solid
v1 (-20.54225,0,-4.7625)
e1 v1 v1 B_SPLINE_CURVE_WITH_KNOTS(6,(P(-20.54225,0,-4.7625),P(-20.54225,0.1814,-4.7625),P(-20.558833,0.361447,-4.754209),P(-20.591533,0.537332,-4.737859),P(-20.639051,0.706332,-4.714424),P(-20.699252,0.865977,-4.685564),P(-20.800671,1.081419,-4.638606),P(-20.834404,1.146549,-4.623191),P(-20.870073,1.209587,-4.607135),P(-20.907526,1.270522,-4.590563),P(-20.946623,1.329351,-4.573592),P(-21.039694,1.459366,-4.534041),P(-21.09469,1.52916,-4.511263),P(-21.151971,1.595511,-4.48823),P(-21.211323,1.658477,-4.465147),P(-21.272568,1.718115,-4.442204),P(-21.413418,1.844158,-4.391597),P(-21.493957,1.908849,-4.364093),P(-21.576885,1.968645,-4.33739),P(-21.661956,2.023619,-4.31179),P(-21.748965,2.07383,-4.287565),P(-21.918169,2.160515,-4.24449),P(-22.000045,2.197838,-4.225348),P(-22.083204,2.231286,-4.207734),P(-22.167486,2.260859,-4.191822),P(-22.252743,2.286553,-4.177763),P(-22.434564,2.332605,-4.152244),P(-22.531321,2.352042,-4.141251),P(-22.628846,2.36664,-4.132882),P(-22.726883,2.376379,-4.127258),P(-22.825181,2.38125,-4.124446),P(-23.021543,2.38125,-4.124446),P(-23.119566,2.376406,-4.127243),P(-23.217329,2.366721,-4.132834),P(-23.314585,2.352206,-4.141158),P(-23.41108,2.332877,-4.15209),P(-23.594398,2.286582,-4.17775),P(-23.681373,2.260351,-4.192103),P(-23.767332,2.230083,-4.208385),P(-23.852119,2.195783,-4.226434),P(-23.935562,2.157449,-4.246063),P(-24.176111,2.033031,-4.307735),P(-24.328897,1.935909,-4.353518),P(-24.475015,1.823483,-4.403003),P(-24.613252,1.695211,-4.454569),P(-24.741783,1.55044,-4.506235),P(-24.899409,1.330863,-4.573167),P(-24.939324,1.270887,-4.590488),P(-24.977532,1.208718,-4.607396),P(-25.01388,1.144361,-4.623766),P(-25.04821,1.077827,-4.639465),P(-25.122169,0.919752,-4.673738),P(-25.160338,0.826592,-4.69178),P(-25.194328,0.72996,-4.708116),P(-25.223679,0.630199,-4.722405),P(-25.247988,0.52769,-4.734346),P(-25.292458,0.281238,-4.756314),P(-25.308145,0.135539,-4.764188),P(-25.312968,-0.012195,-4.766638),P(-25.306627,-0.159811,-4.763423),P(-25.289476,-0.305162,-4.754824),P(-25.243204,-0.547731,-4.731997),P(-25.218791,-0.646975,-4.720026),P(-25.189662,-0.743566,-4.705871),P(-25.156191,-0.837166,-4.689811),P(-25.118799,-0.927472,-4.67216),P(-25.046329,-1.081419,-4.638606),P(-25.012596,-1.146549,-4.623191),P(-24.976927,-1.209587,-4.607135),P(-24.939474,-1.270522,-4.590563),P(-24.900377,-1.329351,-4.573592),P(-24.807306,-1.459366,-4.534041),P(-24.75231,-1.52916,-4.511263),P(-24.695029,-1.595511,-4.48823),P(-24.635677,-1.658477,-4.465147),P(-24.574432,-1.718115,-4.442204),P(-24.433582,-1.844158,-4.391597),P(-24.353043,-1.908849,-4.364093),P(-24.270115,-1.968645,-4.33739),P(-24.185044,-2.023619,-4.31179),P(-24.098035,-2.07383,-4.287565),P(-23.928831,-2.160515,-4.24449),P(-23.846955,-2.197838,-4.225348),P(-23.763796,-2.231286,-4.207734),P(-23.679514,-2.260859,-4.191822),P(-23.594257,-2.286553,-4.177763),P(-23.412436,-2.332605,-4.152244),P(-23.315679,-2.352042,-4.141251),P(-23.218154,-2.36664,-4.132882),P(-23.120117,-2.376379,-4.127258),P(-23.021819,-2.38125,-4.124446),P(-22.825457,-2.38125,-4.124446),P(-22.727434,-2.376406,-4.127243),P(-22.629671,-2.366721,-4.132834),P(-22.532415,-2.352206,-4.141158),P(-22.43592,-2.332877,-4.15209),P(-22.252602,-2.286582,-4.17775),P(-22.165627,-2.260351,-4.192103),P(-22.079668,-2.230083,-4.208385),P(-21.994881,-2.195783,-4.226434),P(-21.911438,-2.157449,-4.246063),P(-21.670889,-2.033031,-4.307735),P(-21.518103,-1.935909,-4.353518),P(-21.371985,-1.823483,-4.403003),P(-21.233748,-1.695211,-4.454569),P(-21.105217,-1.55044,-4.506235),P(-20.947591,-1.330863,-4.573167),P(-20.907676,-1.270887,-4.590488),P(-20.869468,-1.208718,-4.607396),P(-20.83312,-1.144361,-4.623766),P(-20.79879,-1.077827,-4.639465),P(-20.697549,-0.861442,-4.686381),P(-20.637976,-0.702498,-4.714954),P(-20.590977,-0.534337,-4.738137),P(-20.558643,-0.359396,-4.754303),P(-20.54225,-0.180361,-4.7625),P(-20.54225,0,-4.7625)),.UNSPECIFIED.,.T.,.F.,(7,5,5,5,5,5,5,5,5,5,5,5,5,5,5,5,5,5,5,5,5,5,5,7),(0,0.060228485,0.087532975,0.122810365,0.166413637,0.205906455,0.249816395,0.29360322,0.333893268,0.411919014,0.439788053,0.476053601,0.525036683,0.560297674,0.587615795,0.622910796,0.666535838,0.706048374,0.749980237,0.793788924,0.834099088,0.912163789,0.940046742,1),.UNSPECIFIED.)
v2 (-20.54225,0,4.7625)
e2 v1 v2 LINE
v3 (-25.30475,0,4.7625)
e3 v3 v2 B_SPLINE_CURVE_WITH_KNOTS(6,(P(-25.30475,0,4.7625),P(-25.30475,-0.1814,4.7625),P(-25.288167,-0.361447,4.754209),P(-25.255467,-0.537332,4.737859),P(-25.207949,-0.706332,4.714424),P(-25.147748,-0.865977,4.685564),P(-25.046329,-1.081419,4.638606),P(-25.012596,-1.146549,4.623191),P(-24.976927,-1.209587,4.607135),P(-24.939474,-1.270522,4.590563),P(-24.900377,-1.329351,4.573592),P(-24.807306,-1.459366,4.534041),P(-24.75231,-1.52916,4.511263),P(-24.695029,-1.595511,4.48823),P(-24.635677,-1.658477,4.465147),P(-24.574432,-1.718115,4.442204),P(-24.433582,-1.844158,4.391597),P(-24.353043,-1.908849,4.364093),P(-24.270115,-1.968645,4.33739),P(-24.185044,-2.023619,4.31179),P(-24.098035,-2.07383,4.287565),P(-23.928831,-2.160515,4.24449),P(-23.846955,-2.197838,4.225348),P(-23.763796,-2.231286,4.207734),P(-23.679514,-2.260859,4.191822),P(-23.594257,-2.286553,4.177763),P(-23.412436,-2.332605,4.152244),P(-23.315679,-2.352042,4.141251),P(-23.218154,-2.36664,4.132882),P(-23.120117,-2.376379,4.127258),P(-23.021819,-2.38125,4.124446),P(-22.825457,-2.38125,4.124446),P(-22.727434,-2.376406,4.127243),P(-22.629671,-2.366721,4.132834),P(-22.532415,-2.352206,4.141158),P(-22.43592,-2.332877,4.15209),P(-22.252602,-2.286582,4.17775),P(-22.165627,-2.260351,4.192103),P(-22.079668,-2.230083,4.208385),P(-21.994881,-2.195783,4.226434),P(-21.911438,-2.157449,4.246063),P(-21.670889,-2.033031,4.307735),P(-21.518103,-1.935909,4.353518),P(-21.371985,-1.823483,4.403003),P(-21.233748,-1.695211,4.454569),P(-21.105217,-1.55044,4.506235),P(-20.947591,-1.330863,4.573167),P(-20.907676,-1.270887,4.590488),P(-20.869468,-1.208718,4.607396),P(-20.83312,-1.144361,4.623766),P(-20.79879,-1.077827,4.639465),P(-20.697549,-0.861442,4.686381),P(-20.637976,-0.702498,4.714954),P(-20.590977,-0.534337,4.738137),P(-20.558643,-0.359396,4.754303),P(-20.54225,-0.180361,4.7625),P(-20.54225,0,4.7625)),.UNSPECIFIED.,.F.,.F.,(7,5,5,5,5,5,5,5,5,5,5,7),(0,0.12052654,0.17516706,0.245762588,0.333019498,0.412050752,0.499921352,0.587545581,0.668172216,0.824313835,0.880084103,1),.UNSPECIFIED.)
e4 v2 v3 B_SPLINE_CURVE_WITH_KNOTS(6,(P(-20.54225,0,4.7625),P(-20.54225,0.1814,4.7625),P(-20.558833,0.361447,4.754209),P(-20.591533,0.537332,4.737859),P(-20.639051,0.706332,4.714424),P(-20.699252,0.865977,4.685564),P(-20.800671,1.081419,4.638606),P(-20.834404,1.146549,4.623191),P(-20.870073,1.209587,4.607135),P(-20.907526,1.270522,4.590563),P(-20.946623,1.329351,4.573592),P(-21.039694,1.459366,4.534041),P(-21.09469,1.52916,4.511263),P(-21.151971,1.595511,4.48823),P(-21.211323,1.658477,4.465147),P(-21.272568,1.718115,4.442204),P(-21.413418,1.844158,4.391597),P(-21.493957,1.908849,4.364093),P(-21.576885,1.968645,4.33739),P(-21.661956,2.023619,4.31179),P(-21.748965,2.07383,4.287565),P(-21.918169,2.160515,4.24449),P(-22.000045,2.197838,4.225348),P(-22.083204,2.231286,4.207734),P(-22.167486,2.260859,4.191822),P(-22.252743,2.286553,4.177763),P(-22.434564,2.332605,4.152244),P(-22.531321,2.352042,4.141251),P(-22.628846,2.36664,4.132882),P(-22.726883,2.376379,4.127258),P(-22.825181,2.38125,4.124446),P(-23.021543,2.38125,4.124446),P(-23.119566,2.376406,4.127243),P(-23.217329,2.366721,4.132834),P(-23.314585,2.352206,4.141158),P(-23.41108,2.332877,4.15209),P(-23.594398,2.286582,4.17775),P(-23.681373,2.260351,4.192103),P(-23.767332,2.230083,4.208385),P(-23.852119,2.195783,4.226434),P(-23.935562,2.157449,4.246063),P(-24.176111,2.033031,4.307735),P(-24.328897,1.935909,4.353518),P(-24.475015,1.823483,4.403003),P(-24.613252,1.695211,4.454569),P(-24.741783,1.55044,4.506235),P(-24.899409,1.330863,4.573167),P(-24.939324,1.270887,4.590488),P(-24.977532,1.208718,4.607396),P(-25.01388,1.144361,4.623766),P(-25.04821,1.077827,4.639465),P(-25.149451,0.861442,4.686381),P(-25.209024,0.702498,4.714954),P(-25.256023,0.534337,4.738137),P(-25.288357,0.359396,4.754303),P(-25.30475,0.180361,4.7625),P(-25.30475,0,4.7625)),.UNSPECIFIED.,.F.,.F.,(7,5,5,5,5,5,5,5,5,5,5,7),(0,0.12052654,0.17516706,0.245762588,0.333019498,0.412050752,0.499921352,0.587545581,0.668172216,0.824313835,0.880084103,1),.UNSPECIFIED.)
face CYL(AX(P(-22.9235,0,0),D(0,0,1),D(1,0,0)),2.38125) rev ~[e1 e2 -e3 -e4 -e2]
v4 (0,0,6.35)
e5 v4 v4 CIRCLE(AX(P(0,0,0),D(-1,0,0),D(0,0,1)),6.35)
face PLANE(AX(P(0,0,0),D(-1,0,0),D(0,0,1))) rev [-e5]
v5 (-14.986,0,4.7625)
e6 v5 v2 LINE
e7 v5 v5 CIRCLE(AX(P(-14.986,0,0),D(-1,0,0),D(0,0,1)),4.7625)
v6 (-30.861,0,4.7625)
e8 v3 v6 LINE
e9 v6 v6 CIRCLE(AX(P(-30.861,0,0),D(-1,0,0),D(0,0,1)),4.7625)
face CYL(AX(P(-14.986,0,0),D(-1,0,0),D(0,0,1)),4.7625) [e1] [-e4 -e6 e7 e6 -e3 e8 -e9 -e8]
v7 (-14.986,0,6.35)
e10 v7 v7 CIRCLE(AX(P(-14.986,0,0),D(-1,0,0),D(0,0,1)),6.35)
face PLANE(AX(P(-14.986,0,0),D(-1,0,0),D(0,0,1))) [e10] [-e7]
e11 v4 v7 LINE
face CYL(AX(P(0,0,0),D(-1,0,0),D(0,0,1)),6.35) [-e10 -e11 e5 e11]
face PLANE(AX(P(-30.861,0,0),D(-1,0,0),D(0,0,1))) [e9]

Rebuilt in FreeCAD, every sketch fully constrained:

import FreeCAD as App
import Part
import Sketcher
from FreeCAD import Vector
Q = App.Units.Quantity

doc = App.newDocument("Part")
params = doc.addObject("Spreadsheet::Sheet", "Params")
for row, (alias, value) in enumerate([
    ("sketch1_width", "0.59 in"),
    ("sketch1_height", "0.25 in"),
    ("sketch1_width2", "1.215 in"),
    ("sketch1_height2", "0.0625 in"),
    ("revolution_angle", "360 deg"),
    ("sketch2_diameter", "0.1875 in"),
    ("pocket1_length", "2 in"),
], start=1):
    params.set(f"A{row}", alias)
    params.set(f"B{row}", "=" + value)
    params.setAlias(f"B{row}", alias)

body = doc.addObject("PartDesign::Body", "Body")

# Sketch on XZ plane
sketch1 = doc.addObject("Sketcher::SketchObject", "Sketch")
body.addObject(sketch1)
sketch1.AttachmentSupport = (doc.XZ_Plane, [""])
sketch1.MapMode = "FlatFace"
sketch1.addGeometry([
    Part.LineSegment(Vector(-30.9, 0, 0), Vector(0, 0, 0)),  # 0
    Part.LineSegment(Vector(0, 0, 0), Vector(0, 6.3, 0)),  # 1
    Part.LineSegment(Vector(0, 6.3, 0), Vector(-15, 6.3, 0)),  # 2
    Part.LineSegment(Vector(-15, 6.3, 0), Vector(-15, 4.8, 0)),  # 3
    Part.LineSegment(Vector(-15, 4.8, 0), Vector(-30.9, 4.8, 0)),  # 4
    Part.LineSegment(Vector(-30.9, 4.8, 0), Vector(-30.9, 0, 0)),  # 5
], False)
sketch1.addConstraint([
    Sketcher.Constraint("Coincident", 0, 2, 1, 1),
    Sketcher.Constraint("Coincident", 1, 2, 2, 1),
    Sketcher.Constraint("Coincident", 2, 2, 3, 1),
    Sketcher.Constraint("Coincident", 3, 2, 4, 1),
    Sketcher.Constraint("Coincident", 4, 2, 5, 1),
    Sketcher.Constraint("Coincident", 5, 2, 0, 1),
    Sketcher.Constraint("Horizontal", 0),
    Sketcher.Constraint("Vertical", 1),
    Sketcher.Constraint("Horizontal", 2),
    Sketcher.Constraint("Vertical", 3),
    Sketcher.Constraint("Horizontal", 4),
    Sketcher.Constraint("Vertical", 5),
    Sketcher.Constraint("Coincident", 0, 2, -1, 1),
    Sketcher.Constraint("DistanceX", 2, 2, 2, 1, Q("0.59 in")),
    Sketcher.Constraint("DistanceY", 1, 1, 1, 2, Q("0.25 in")),
    Sketcher.Constraint("DistanceX", 0, 1, 0, 2, Q("1.215 in")),
    Sketcher.Constraint("DistanceY", 3, 2, 3, 1, Q("0.0625 in")),
])
sketch1.setExpression("Constraints[13]", "Params.sketch1_width")
sketch1.setExpression("Constraints[14]", "Params.sketch1_height")
sketch1.setExpression("Constraints[15]", "Params.sketch1_width2")
sketch1.setExpression("Constraints[16]", "Params.sketch1_height2")
revolution = doc.addObject("PartDesign::Revolution", "Revolution")
body.addObject(revolution)
revolution.Profile = sketch1
revolution.ReferenceAxis = (sketch1, ["H_Axis"])
revolution.setExpression("Angle", "Params.revolution_angle")

# Sketch on XY plane
sketch2 = doc.addObject("Sketcher::SketchObject", "Sketch001")
body.addObject(sketch2)
sketch2.AttachmentSupport = (doc.XY_Plane, [""])
sketch2.MapMode = "FlatFace"
sketch2.addGeometry(Part.Circle(Vector(-22.9, 0, 0), Vector(0, 0, 1), 2.4), False)
sketch2.addConstraint([
    Sketcher.Constraint("PointOnObject", 0, 3, -1),
    Sketcher.Constraint("Diameter", 0, Q("0.1875 in")),
    Sketcher.Constraint("DistanceX", 0, 3, -1, 1, Q("0.9025 in")),
])
sketch2.setExpression("Constraints[1]", "Params.sketch2_diameter")
pocket1 = doc.addObject("PartDesign::Pocket", "Pocket")
body.addObject(pocket1)
pocket1.Profile = sketch2
pocket1.setExpression("Length", "Params.pocket1_length")
pocket1.Midplane = True

doc.recompute()
